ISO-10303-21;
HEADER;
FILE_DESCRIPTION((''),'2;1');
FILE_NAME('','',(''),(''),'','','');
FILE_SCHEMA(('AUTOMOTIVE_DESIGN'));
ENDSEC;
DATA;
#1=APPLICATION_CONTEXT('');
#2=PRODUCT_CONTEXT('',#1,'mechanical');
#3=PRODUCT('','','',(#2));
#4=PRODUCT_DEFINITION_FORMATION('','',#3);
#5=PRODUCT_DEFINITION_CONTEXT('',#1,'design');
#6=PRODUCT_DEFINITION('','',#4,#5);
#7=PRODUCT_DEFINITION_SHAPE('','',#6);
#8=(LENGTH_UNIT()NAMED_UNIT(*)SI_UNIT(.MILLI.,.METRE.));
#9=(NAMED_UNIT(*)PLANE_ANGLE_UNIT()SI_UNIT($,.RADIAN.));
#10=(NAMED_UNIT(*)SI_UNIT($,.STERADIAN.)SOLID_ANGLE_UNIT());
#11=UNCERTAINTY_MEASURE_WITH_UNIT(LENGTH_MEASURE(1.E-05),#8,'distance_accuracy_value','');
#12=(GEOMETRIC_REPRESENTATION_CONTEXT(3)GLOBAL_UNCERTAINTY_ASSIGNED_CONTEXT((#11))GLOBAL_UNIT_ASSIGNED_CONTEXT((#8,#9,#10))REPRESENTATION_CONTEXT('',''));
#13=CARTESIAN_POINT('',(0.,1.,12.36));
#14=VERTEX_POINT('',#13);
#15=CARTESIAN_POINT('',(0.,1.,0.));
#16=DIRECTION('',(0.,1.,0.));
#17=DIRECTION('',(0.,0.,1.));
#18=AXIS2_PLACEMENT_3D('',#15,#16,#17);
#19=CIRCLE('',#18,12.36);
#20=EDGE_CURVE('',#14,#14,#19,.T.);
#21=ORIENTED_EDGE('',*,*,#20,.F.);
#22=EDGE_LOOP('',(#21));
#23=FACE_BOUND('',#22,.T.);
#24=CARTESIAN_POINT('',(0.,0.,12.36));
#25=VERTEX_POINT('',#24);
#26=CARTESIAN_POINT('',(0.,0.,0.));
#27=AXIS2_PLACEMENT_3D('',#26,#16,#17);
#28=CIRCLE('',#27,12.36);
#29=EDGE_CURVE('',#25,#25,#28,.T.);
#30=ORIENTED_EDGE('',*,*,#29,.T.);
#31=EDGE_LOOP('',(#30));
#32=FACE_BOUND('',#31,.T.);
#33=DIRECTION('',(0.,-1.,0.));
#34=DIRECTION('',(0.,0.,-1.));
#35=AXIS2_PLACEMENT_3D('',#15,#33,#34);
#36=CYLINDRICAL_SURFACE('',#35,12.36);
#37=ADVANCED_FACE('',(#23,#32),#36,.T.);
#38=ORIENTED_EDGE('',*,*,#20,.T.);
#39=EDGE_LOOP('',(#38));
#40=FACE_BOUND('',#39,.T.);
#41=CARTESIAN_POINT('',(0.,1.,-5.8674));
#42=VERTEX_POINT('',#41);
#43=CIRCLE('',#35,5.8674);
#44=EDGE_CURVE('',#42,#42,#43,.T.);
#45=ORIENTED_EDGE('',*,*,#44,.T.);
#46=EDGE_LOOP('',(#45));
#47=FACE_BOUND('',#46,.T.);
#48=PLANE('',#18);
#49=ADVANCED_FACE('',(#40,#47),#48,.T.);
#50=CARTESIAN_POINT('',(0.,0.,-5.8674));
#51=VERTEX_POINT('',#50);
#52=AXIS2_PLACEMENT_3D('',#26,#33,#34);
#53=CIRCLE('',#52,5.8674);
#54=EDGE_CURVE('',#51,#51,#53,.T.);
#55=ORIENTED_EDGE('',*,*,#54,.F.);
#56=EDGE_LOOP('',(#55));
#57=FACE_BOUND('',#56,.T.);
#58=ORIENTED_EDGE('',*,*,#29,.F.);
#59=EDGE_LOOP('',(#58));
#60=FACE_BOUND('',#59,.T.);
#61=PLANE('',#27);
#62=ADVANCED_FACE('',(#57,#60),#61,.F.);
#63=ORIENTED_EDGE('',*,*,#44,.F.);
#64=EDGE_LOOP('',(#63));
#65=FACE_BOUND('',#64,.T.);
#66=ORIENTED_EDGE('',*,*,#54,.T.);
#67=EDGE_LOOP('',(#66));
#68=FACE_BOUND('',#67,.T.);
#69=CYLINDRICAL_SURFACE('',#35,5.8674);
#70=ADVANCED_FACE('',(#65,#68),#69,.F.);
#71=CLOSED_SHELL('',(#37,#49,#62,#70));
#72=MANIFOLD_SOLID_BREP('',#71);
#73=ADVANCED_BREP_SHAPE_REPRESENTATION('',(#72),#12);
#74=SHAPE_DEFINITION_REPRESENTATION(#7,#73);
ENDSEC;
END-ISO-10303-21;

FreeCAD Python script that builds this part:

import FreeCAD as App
import Part
import Sketcher
Q = App.Units.Quantity

doc = App.newDocument("Part")
body = doc.addObject("PartDesign::Body", "Body")

# Sketch on XZ plane
sketch1 = doc.addObject("Sketcher::SketchObject", "Sketch")
body.addObject(sketch1)
sketch1.AttachmentSupport = (doc.XZ_Plane, [""])
sketch1.MapMode = "FlatFace"
sketch1.addGeometry(Part.Circle(App.Vector(0, 0, 0), App.Vector(0, 0, 1), 12.36), False)
sketch1.addConstraint(Sketcher.Constraint("Coincident", 0, 3, -1, 1))
sketch1.addConstraint(Sketcher.Constraint("Diameter", 0, Q("24.72 mm")))
pad1 = doc.addObject("PartDesign::Pad", "Pad")
body.addObject(pad1)
pad1.Profile = sketch1
pad1.Length = 1
pad1.Reversed = True

# Sketch on XZ plane
sketch2 = doc.addObject("Sketcher::SketchObject", "Sketch001")
body.addObject(sketch2)
sketch2.AttachmentSupport = (doc.XZ_Plane, [""])
sketch2.MapMode = "FlatFace"
sketch2.addGeometry(Part.Circle(App.Vector(0, 0, 0), App.Vector(0, 0, 1), 5.8674), False)
sketch2.addConstraint(Sketcher.Constraint("Coincident", 0, 3, -1, 1))
sketch2.addConstraint(Sketcher.Constraint("Diameter", 0, Q("11.7348 mm")))
pocket1 = doc.addObject("PartDesign::Pocket", "Pocket")
body.addObject(pocket1)
pocket1.Profile = sketch2
pocket1.Type = "ThroughAll"

doc.recompute()
